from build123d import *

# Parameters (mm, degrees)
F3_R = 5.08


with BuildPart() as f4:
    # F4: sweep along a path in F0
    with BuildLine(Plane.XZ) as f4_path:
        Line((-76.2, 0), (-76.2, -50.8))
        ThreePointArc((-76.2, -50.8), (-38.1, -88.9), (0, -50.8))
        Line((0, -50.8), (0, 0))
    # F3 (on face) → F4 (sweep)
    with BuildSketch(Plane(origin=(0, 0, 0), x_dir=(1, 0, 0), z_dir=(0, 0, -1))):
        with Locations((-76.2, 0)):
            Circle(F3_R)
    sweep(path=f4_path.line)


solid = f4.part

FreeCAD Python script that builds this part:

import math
import FreeCAD as App
import Part
import Sketcher

V = App.Vector
Q = App.Units.Quantity

doc = App.newDocument("Part")
body = doc.addObject("PartDesign::Body", "Body")

sketch1 = body.newObject("Sketcher::SketchObject", "Sketch")
sketch1.AttachmentSupport = (doc.getObject("XY_Plane"), [""])
sketch1.MapMode = "FlatFace"
sketch1.addGeometry(Part.Circle(V(-76.2, 0, 0), V(0, 0, 1), 5.08), False)
sketch1.addConstraint([
    Sketcher.Constraint("PointOnObject", 0, 3, -1),
    Sketcher.Constraint("Diameter", 0, Q("0.4 in")),
    Sketcher.Constraint("DistanceX", 0, 3, -1, 1, Q("3 in")),
])

sketch2 = body.newObject("Sketcher::SketchObject", "Sketch001")
sketch2.AttachmentSupport = (doc.getObject("XZ_Plane"), [""])
sketch2.MapMode = "FlatFace"
sketch2.addGeometry([
    Part.LineSegment(V(-76.2, 0, 0), V(-76.2, -50.8, 0)),
    Part.ArcOfCircle(Part.Circle(V(-38.1, -50.8, 0), V(0, 0, 1), 38.1), math.radians(180), math.radians(360)),
    Part.LineSegment(V(0, -50.8, 0), V(0, 0, 0)),
], False)
sketch2.addConstraint([
    Sketcher.Constraint("Tangent", 0, 2, 1, 1),
    Sketcher.Constraint("Tangent", 1, 2, 2, 1),
    Sketcher.Constraint("Vertical", 0),
    Sketcher.Constraint("Vertical", 2),
    Sketcher.Constraint("Coincident", 2, 2, -1, 1),
    Sketcher.Constraint("PointOnObject", 0, 1, -1),
    Sketcher.Constraint("Radius", 1, Q("1.5 in")),
    Sketcher.Constraint("DistanceY", 0, 2, 0, 1, Q("2 in")),
])
doc.recompute()

additivepipe = body.newObject("PartDesign::AdditivePipe", "AdditivePipe")
additivepipe.Profile = sketch1
additivepipe.Spine = (sketch2, ["Edge1", "Edge2", "Edge3"])

doc.recompute()
